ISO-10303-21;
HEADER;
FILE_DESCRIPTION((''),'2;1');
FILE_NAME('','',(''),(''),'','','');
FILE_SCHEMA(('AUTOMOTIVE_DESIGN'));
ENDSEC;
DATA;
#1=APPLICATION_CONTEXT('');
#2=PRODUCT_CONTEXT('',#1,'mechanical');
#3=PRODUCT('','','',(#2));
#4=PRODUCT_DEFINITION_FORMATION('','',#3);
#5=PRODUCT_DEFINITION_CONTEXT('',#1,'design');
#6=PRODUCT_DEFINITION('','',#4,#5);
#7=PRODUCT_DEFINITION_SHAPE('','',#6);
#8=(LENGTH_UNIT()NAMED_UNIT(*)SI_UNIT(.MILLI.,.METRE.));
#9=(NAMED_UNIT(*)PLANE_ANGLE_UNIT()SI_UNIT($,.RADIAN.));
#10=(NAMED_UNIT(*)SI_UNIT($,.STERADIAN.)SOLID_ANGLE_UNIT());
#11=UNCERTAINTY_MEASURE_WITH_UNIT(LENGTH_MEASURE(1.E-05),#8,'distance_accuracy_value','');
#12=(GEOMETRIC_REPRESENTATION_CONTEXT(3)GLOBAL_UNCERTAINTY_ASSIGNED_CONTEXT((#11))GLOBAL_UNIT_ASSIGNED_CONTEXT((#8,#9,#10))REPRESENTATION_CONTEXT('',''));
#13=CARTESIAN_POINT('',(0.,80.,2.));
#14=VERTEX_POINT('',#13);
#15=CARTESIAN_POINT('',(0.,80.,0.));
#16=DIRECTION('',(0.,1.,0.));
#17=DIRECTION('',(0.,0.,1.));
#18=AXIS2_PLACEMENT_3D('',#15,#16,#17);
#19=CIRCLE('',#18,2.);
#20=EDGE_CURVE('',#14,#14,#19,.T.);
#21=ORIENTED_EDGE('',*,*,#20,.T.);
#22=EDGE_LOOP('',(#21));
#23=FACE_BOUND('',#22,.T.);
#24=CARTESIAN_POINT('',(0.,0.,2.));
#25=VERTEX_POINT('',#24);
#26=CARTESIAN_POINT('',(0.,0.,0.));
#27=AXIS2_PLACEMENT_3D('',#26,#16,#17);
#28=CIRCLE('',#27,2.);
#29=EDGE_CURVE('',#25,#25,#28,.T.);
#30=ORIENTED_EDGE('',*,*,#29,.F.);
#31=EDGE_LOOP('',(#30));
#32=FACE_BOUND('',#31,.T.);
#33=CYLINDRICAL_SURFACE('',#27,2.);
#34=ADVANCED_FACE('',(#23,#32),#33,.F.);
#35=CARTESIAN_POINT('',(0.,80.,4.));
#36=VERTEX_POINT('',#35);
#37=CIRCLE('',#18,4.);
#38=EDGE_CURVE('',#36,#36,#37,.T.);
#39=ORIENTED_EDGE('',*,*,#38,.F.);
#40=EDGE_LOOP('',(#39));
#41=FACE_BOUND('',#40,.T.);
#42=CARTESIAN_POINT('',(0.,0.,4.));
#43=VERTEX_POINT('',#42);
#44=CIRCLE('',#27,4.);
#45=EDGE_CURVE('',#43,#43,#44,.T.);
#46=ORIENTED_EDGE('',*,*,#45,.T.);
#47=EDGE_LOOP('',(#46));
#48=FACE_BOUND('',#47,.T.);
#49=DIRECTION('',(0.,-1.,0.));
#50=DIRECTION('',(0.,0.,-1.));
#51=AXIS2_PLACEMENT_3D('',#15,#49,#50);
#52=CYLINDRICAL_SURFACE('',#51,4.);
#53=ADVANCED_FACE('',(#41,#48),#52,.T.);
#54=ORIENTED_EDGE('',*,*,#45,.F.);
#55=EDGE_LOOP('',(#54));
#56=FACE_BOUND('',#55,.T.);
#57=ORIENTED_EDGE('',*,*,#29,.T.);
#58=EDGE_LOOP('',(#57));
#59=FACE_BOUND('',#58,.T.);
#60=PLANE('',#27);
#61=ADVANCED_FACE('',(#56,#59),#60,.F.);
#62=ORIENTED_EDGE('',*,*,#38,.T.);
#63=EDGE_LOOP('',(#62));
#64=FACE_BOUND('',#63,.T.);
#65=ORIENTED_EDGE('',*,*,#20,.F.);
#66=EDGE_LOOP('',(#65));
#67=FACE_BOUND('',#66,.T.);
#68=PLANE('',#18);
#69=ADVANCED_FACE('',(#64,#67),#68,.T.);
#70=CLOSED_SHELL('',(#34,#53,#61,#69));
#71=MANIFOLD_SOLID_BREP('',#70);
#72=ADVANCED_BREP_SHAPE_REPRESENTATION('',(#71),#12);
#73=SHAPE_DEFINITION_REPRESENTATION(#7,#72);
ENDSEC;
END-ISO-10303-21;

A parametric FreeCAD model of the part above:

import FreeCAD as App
import Part
import Sketcher
from FreeCAD import Vector

doc = App.newDocument("Part")
body = doc.addObject("PartDesign::Body", "Body")

# Sketch on XZ plane
sketch1 = doc.addObject("Sketcher::SketchObject", "Sketch")
body.addObject(sketch1)
sketch1.AttachmentSupport = (doc.XZ_Plane, [""])
sketch1.MapMode = "FlatFace"
sketch1.addGeometry(Part.Circle(Vector(0, 0, 0), Vector(0, 0, 1), 4), False)
sketch1.addConstraint([
    Sketcher.Constraint("Coincident", 0, 3, -1, 1),
    Sketcher.Constraint("Diameter", 0, 8.0),
])
pad1 = doc.addObject("PartDesign::Pad", "Pad")
body.addObject(pad1)
pad1.Profile = sketch1
pad1.Length = 80
pad1.Reversed = True

# Sketch on XZ plane
sketch2 = doc.addObject("Sketcher::SketchObject", "Sketch001")
body.addObject(sketch2)
sketch2.AttachmentSupport = (doc.XZ_Plane, [""])
sketch2.MapMode = "FlatFace"
sketch2.AttachmentOffset = App.Placement(Vector(0, 0, -80), App.Rotation())
sketch2.addGeometry(Part.Circle(Vector(0, 0, 0), Vector(0, 0, 1), 2), False)
sketch2.addConstraint([
    Sketcher.Constraint("Coincident", 0, 3, -1, 1),
    Sketcher.Constraint("Diameter", 0, 4.0),
])
pocket1 = doc.addObject("PartDesign::Pocket", "Pocket")
body.addObject(pocket1)
pocket1.Profile = sketch2
pocket1.Type = "ThroughAll"
pocket1.Reversed = True

doc.recompute()
